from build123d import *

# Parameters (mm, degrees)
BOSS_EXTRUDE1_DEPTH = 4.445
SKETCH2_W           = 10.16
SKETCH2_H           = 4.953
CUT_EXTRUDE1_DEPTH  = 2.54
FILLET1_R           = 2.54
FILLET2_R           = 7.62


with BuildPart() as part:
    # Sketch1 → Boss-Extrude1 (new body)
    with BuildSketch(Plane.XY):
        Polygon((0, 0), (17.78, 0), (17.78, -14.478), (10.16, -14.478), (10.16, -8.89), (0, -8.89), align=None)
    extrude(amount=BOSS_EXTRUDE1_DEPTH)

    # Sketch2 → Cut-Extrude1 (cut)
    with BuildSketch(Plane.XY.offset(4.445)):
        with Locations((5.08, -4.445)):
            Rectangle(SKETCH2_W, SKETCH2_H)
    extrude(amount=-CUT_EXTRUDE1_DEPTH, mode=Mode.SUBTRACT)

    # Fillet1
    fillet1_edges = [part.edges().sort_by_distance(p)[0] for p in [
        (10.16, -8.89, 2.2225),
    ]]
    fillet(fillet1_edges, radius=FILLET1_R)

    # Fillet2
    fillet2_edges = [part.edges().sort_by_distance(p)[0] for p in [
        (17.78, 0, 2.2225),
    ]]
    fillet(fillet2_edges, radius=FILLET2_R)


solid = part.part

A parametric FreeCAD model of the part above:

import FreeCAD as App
import Part
import Sketcher

V = App.Vector
Q = App.Units.Quantity


def edges_at(feature, points):
    """Names of the edges that pass closest to the given points."""
    edges = feature.Shape.Edges
    near = lambda p: min(range(len(edges)), key=lambda i: edges[i].distToShape(Part.Vertex(*p))[0])
    return sorted({f"Edge{near(p) + 1}" for p in points})


def add_polygon(sketch, points):
    """Adds a closed chain of lines whose ends are joined by coincident constraints."""
    first, n = sketch.GeometryCount, len(points)
    for a, b in zip(points, points[1:] + points[:1]):
        sketch.addGeometry(Part.LineSegment(App.Vector(*a, 0), App.Vector(*b, 0)), False)
    for i in range(n):
        sketch.addConstraint(Sketcher.Constraint("Coincident", first + i, 2, first + (i + 1) % n, 1))

doc = App.newDocument("Part")
body = doc.addObject("PartDesign::Body", "Body")

sketch1 = body.newObject("Sketcher::SketchObject", "Sketch")
sketch1.AttachmentSupport = (doc.getObject("XY_Plane"), [""])
sketch1.MapMode = "FlatFace"
add_polygon(sketch1, [(18, 0), (0, 0), (0, -9), (10, -9), (10, -14), (18, -14)])
sketch1.addConstraint(Sketcher.Constraint("Horizontal", 0))
sketch1.addConstraint(Sketcher.Constraint("Vertical", 1))
sketch1.addConstraint(Sketcher.Constraint("Horizontal", 2))
sketch1.addConstraint(Sketcher.Constraint("Vertical", 3))
sketch1.addConstraint(Sketcher.Constraint("Horizontal", 4))
sketch1.addConstraint(Sketcher.Constraint("Vertical", 5))
sketch1.addConstraint(Sketcher.Constraint("Coincident", 0, 2, -1, 1))
sketch1.addConstraint(Sketcher.Constraint("DistanceX", 0, 2, 0, 1, Q("0.7 in")))
sketch1.addConstraint(Sketcher.Constraint("DistanceX", 2, 1, 2, 2, Q("0.4 in")))
sketch1.addConstraint(Sketcher.Constraint("DistanceY", 1, 2, 1, 1, Q("0.35 in")))
sketch1.addConstraint(Sketcher.Constraint("DistanceY", 3, 2, 3, 1, Q("0.22 in")))
pad1 = body.newObject("PartDesign::Pad", "Pad")
pad1.Profile = sketch1
pad1.Length = Q("0.175 in")

sketch2 = body.newObject("Sketcher::SketchObject", "Sketch001")
sketch2.AttachmentSupport = (doc.getObject("XY_Plane"), [""])
sketch2.MapMode = "FlatFace"
sketch2.AttachmentOffset = App.Placement(V(0, 0, 0.175 * 25.4), App.Rotation())
add_polygon(sketch2, [(0, -2), (0, -6.9), (10.2, -6.9), (10.2, -2)])
sketch2.addConstraint(Sketcher.Constraint("Vertical", 0))
sketch2.addConstraint(Sketcher.Constraint("Horizontal", 1))
sketch2.addConstraint(Sketcher.Constraint("Vertical", 2))
sketch2.addConstraint(Sketcher.Constraint("Horizontal", 3))
sketch2.addConstraint(Sketcher.Constraint("PointOnObject", 0, 2, -2))
sketch2.addConstraint(Sketcher.Constraint("DistanceX", 1, 1, 1, 2, Q("0.4 in")))
sketch2.addConstraint(Sketcher.Constraint("DistanceY", 0, 2, 0, 1, Q("0.195 in")))
sketch2.addConstraint(Sketcher.Constraint("DistanceY", 0, 2, -1, 1, Q("0.2725 in")))
pocket1 = body.newObject("PartDesign::Pocket", "Pocket")
pocket1.Profile = sketch2
pocket1.Length = Q("0.1 in")
doc.recompute()

fillet = body.newObject("PartDesign::Fillet", "Fillet")
fillet.Base = (pocket1, edges_at(pocket1, [(10.16, -8.89, 2.223)]))
fillet.Radius = Q("0.1 in")
doc.recompute()

fillet2 = body.newObject("PartDesign::Fillet", "Fillet001")
fillet2.Base = (fillet, edges_at(fillet, [(17.78, 0, 2.223)]))
fillet2.Radius = Q("0.3 in")

doc.recompute()
